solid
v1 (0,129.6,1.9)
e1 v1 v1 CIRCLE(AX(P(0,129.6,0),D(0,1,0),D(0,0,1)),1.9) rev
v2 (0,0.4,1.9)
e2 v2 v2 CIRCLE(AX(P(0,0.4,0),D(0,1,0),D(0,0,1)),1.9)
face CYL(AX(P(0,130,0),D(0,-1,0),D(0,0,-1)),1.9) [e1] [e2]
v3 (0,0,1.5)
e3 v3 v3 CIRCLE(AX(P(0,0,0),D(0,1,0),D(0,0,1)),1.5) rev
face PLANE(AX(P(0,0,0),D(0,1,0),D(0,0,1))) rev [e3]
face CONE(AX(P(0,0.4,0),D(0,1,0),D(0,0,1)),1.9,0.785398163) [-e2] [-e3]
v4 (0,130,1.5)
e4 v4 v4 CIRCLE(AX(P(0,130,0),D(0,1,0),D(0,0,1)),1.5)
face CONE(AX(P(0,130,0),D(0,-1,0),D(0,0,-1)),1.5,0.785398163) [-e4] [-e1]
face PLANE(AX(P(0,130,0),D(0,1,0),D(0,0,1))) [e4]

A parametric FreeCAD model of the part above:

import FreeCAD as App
import Part
import Sketcher
from FreeCAD import Vector
Q = App.Units.Quantity


def edges_at(feature, points):
    """Names of the edges that pass closest to the given points."""
    edges = feature.Shape.Edges
    near = lambda p: min(range(len(edges)), key=lambda i: edges[i].distToShape(Part.Vertex(*p))[0])
    return sorted({f"Edge{near(p) + 1}" for p in points})

doc = App.newDocument("Part")
body = doc.addObject("PartDesign::Body", "Body")

# Sketch on XZ plane
sketch1 = doc.addObject("Sketcher::SketchObject", "Sketch")
body.addObject(sketch1)
sketch1.AttachmentSupport = (doc.XZ_Plane, [""])
sketch1.MapMode = "FlatFace"
sketch1.addGeometry(Part.Circle(Vector(0, 0, 0), Vector(0, 0, 1), 1.9), False)
sketch1.addConstraint(Sketcher.Constraint("Coincident", 0, 3, -1, 1))
sketch1.addConstraint(Sketcher.Constraint("Diameter", 0, Q("3.8 mm")))
pad1 = doc.addObject("PartDesign::Pad", "Pad")
body.addObject(pad1)
pad1.Profile = sketch1
pad1.Length = 130
pad1.Reversed = True
doc.recompute()

chamfer = doc.addObject("PartDesign::Chamfer", "Chamfer")
body.addObject(chamfer)
chamfer.Base = (pad1, edges_at(pad1, [(0, 0, -1.9), (0, 130, -1.9)]))
chamfer.Size = 0.4

doc.recompute()
